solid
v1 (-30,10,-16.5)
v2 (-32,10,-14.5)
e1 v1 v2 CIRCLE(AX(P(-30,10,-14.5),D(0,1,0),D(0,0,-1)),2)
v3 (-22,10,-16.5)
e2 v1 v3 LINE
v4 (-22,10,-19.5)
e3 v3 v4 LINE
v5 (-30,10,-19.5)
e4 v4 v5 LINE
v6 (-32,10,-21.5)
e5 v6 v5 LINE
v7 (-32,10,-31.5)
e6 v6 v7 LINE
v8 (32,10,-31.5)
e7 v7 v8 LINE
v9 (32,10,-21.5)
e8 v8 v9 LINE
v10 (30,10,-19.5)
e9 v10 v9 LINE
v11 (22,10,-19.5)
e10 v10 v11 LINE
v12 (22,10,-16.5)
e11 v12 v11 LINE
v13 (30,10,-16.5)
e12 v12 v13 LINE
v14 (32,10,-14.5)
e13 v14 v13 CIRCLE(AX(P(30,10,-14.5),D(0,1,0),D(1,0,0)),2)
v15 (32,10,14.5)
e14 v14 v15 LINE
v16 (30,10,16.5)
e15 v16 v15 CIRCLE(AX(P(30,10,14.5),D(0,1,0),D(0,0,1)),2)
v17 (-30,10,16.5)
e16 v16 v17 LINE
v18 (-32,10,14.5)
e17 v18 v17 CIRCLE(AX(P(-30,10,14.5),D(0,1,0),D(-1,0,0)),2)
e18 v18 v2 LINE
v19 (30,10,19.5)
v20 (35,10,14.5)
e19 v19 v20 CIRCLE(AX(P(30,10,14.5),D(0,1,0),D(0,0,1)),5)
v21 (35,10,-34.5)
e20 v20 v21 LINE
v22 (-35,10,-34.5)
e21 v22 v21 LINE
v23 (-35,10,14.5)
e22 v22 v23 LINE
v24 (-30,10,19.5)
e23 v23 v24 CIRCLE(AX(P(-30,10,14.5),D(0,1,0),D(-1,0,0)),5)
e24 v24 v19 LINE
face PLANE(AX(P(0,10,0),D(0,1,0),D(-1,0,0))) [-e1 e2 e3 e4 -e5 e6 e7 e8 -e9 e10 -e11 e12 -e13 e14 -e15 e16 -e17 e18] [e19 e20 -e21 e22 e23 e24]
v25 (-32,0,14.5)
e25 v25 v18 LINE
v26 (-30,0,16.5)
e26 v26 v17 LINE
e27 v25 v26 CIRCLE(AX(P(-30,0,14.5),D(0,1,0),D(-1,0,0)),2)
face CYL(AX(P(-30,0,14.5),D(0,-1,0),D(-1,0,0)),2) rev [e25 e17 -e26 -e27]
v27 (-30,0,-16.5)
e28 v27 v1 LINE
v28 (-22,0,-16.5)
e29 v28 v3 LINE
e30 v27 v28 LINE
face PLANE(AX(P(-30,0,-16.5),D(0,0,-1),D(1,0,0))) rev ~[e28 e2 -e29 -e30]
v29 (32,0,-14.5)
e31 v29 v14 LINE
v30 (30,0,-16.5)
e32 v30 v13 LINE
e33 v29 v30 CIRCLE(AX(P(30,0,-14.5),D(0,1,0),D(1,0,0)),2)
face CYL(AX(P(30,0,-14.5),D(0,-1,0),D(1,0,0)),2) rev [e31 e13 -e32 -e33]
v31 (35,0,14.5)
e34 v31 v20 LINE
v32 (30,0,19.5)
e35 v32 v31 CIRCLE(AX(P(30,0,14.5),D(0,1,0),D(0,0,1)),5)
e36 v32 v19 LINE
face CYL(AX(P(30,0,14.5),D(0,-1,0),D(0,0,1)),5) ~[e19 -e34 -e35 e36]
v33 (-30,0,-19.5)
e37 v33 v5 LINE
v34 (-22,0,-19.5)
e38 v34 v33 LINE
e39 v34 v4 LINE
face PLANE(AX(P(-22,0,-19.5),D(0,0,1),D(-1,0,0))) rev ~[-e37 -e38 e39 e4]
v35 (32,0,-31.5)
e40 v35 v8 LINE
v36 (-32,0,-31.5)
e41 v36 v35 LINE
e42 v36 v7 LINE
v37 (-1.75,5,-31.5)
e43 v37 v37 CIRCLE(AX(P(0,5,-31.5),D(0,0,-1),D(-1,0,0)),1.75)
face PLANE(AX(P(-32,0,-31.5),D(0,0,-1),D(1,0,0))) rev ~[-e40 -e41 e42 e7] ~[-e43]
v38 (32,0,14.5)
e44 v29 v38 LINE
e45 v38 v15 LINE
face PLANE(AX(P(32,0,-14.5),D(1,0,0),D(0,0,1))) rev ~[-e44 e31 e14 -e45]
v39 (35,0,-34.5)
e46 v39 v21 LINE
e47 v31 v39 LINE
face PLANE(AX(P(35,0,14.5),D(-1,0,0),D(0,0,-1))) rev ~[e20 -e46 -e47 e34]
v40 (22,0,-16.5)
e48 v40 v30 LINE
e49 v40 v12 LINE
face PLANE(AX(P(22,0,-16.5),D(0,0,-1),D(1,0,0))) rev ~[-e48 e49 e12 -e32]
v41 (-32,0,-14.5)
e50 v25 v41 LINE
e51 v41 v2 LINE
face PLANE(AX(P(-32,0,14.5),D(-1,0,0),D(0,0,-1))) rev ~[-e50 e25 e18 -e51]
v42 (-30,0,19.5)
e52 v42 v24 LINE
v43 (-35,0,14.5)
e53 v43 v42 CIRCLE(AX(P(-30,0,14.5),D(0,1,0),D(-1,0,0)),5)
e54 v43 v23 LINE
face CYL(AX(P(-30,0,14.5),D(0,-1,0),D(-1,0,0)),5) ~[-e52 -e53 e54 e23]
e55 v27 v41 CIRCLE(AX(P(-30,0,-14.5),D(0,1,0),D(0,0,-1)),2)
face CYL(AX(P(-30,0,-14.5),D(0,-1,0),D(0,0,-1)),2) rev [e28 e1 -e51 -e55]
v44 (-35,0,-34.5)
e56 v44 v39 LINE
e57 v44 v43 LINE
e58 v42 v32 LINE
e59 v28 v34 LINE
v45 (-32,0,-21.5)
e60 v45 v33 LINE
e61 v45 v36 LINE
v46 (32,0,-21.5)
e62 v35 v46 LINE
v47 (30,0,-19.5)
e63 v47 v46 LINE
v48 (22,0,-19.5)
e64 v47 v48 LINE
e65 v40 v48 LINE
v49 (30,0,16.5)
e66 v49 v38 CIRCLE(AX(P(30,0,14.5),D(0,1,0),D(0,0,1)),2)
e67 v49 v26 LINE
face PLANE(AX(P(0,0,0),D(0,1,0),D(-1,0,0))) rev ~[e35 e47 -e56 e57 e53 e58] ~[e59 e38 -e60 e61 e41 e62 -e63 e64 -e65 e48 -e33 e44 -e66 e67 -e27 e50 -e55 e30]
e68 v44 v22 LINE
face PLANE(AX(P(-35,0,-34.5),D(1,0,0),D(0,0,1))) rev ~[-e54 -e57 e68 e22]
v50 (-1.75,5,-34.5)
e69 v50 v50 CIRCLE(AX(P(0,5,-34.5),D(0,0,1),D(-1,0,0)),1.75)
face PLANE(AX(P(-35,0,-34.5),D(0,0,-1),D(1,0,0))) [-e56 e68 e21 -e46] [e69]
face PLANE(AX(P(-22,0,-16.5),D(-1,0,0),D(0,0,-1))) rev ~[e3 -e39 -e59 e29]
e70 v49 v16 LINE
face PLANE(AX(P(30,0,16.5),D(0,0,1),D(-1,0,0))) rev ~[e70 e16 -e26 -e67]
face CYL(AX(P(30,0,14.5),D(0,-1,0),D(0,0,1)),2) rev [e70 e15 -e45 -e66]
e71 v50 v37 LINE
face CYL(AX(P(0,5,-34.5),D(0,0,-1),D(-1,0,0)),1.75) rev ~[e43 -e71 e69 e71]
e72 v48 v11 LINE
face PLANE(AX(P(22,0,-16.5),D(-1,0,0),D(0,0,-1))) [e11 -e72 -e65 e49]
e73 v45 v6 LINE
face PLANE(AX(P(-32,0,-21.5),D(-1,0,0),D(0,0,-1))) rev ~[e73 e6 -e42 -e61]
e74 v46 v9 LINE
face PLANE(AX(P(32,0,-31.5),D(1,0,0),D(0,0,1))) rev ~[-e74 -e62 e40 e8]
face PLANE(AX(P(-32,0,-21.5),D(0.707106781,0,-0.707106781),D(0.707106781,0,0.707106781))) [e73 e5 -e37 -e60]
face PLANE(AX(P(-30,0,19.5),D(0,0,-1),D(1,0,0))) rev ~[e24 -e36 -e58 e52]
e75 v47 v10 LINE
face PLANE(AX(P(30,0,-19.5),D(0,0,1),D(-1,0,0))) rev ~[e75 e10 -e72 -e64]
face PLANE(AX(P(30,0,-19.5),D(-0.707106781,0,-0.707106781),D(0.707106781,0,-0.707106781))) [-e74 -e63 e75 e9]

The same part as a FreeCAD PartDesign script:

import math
import FreeCAD as App
import Part
import Sketcher
Q = App.Units.Quantity

doc = App.newDocument("Part")
body = doc.addObject("PartDesign::Body", "Body")

# Sketch on XZ plane
sketch1 = body.newObject("Sketcher::SketchObject", "Sketch")
sketch1.AttachmentSupport = (doc.getObject("XZ_Plane"), [""])
sketch1.MapMode = "FlatFace"
sketch1.addGeometry(Part.ArcOfCircle(Part.Circle(App.Vector(30, 14.5, 0), App.Vector(0, 0, 1), 5), math.radians(0), math.radians(90)), False)
sketch1.addGeometry(Part.LineSegment(App.Vector(35, 14.5, 0), App.Vector(35, -34.5, 0)), False)
sketch1.addGeometry(Part.LineSegment(App.Vector(35, -34.5, 0), App.Vector(-35, -34.5, 0)), False)
sketch1.addGeometry(Part.LineSegment(App.Vector(-35, -34.5, 0), App.Vector(-35, 14.5, 0)), False)
sketch1.addGeometry(Part.ArcOfCircle(Part.Circle(App.Vector(-30, 14.5, 0), App.Vector(0, 0, 1), 5), math.radians(90), math.radians(180)), False)
sketch1.addGeometry(Part.LineSegment(App.Vector(-30, 19.5, 0), App.Vector(30, 19.5, 0)), False)
sketch1.addGeometry(Part.ArcOfCircle(Part.Circle(App.Vector(30, 14.5, 0), App.Vector(0, 0, 1), 2), math.radians(0), math.radians(90)), False)
sketch1.addGeometry(Part.LineSegment(App.Vector(30, 16.5, 0), App.Vector(-30, 16.5, 0)), False)
sketch1.addGeometry(Part.ArcOfCircle(Part.Circle(App.Vector(-30, 14.5, 0), App.Vector(0, 0, 1), 2), math.radians(90), math.radians(180)), False)
sketch1.addGeometry(Part.LineSegment(App.Vector(-32, 14.5, 0), App.Vector(-32, -14.5, 0)), False)
sketch1.addGeometry(Part.ArcOfCircle(Part.Circle(App.Vector(-30, -14.5, 0), App.Vector(0, 0, 1), 2), math.radians(180), math.radians(270)), False)
sketch1.addGeometry(Part.LineSegment(App.Vector(-30, -16.5, 0), App.Vector(-22, -16.5, 0)), False)
sketch1.addGeometry(Part.LineSegment(App.Vector(-22, -16.5, 0), App.Vector(-22, -19.5, 0)), False)
sketch1.addGeometry(Part.LineSegment(App.Vector(-22, -19.5, 0), App.Vector(-30, -19.5, 0)), False)
sketch1.addGeometry(Part.LineSegment(App.Vector(-30, -19.5, 0), App.Vector(-32, -21.5, 0)), False)
sketch1.addGeometry(Part.LineSegment(App.Vector(-32, -21.5, 0), App.Vector(-32, -31.5, 0)), False)
sketch1.addGeometry(Part.LineSegment(App.Vector(-32, -31.5, 0), App.Vector(32, -31.5, 0)), False)
sketch1.addGeometry(Part.LineSegment(App.Vector(32, -31.5, 0), App.Vector(32, -21.5, 0)), False)
sketch1.addGeometry(Part.LineSegment(App.Vector(32, -21.5, 0), App.Vector(30, -19.5, 0)), False)
sketch1.addGeometry(Part.LineSegment(App.Vector(30, -19.5, 0), App.Vector(22, -19.5, 0)), False)
sketch1.addGeometry(Part.LineSegment(App.Vector(22, -19.5, 0), App.Vector(22, -16.5, 0)), False)
sketch1.addGeometry(Part.LineSegment(App.Vector(22, -16.5, 0), App.Vector(30, -16.5, 0)), False)
sketch1.addGeometry(Part.ArcOfCircle(Part.Circle(App.Vector(30, -14.5, 0), App.Vector(0, 0, 1), 2), math.radians(-90), math.radians(0)), False)
sketch1.addGeometry(Part.LineSegment(App.Vector(32, -14.5, 0), App.Vector(32, 14.5, 0)), False)
sketch1.addConstraint(Sketcher.Constraint("Tangent", 0, 1, 1, 1))
sketch1.addConstraint(Sketcher.Constraint("Coincident", 1, 2, 2, 1))
sketch1.addConstraint(Sketcher.Constraint("Coincident", 2, 2, 3, 1))
sketch1.addConstraint(Sketcher.Constraint("Tangent", 3, 2, 4, 2))
sketch1.addConstraint(Sketcher.Constraint("Tangent", 4, 1, 5, 1))
sketch1.addConstraint(Sketcher.Constraint("Tangent", 5, 2, 0, 2))
sketch1.addConstraint(Sketcher.Constraint("Tangent", 6, 2, 7, 1))
sketch1.addConstraint(Sketcher.Constraint("Tangent", 7, 2, 8, 1))
sketch1.addConstraint(Sketcher.Constraint("Tangent", 8, 2, 9, 1))
sketch1.addConstraint(Sketcher.Constraint("Tangent", 9, 2, 10, 1))
sketch1.addConstraint(Sketcher.Constraint("Tangent", 10, 2, 11, 1))
sketch1.addConstraint(Sketcher.Constraint("Coincident", 11, 2, 12, 1))
sketch1.addConstraint(Sketcher.Constraint("Coincident", 12, 2, 13, 1))
sketch1.addConstraint(Sketcher.Constraint("Coincident", 13, 2, 14, 1))
sketch1.addConstraint(Sketcher.Constraint("Coincident", 14, 2, 15, 1))
sketch1.addConstraint(Sketcher.Constraint("Coincident", 15, 2, 16, 1))
sketch1.addConstraint(Sketcher.Constraint("Coincident", 16, 2, 17, 1))
sketch1.addConstraint(Sketcher.Constraint("Coincident", 17, 2, 18, 1))
sketch1.addConstraint(Sketcher.Constraint("Coincident", 18, 2, 19, 1))
sketch1.addConstraint(Sketcher.Constraint("Coincident", 19, 2, 20, 1))
sketch1.addConstraint(Sketcher.Constraint("Coincident", 20, 2, 21, 1))
sketch1.addConstraint(Sketcher.Constraint("Tangent", 21, 2, 22, 1))
sketch1.addConstraint(Sketcher.Constraint("Tangent", 22, 2, 23, 1))
sketch1.addConstraint(Sketcher.Constraint("Tangent", 23, 2, 6, 1))
sketch1.addConstraint(Sketcher.Constraint("Vertical", 1))
sketch1.addConstraint(Sketcher.Constraint("Horizontal", 2))
sketch1.addConstraint(Sketcher.Constraint("Vertical", 3))
sketch1.addConstraint(Sketcher.Constraint("Horizontal", 5))
sketch1.addConstraint(Sketcher.Constraint("Horizontal", 7))
sketch1.addConstraint(Sketcher.Constraint("Vertical", 9))
sketch1.addConstraint(Sketcher.Constraint("Horizontal", 11))
sketch1.addConstraint(Sketcher.Constraint("Vertical", 12))
sketch1.addConstraint(Sketcher.Constraint("Horizontal", 13))
sketch1.addConstraint(Sketcher.Constraint("Vertical", 15))
sketch1.addConstraint(Sketcher.Constraint("Horizontal", 16))
sketch1.addConstraint(Sketcher.Constraint("Vertical", 17))
sketch1.addConstraint(Sketcher.Constraint("Horizontal", 19))
sketch1.addConstraint(Sketcher.Constraint("Vertical", 20))
sketch1.addConstraint(Sketcher.Constraint("Horizontal", 21))
sketch1.addConstraint(Sketcher.Constraint("Vertical", 23))
sketch1.addConstraint(Sketcher.Constraint("Coincident", 6, 3, 0, 3))
sketch1.addConstraint(Sketcher.Constraint("Coincident", 8, 3, 4, 3))
sketch1.addConstraint(Sketcher.Constraint("Equal", 0, 4))
sketch1.addConstraint(Sketcher.Constraint("Equal", 8, 10))
sketch1.addConstraint(Sketcher.Constraint("Equal", 10, 22))
sketch1.addConstraint(Sketcher.Constraint("Symmetric", 0, 3, 10, 3, -1, 1))
sketch1.addConstraint(Sketcher.Constraint("Symmetric", 5, 2, 13, 2, -1, 1))
sketch1.addConstraint(Sketcher.Constraint("Symmetric", 4, 1, 18, 2, -1, 1))
sketch1.addConstraint(Sketcher.Constraint("Symmetric", 14, 2, 17, 2, -2))
sketch1.addConstraint(Sketcher.Constraint("Symmetric", 11, 2, 20, 2, -2))
sketch1.addConstraint(Sketcher.Constraint("Perpendicular", 14, 18))
sketch1.addConstraint(Sketcher.Constraint("Vertical", 9, 2, 14, 2))
sketch1.addConstraint(Sketcher.Constraint("Radius", 0, Q("5 mm")))
sketch1.addConstraint(Sketcher.Constraint("Radius", 6, Q("2 mm")))
sketch1.addConstraint(Sketcher.Constraint("DistanceX", 2, 2, 2, 1, Q("70 mm")))
sketch1.addConstraint(Sketcher.Constraint("DistanceY", 15, 2, 15, 1, Q("10 mm")))
sketch1.addConstraint(Sketcher.Constraint("DistanceY", 1, 2, 22, 3, Q("20 mm")))
sketch1.addConstraint(Sketcher.Constraint("DistanceX", 9, 2, 11, 2, Q("10 mm")))
sketch1.addConstraint(Sketcher.Constraint("DistanceY", -1, 1, 6, 2, Q("16.5 mm")))
pad1 = body.newObject("PartDesign::Pad", "Pad")
pad1.Profile = sketch1
pad1.Length = 10
pad1.Reversed = True

# Sketch on XY plane
sketch2 = body.newObject("Sketcher::SketchObject", "Sketch001")
sketch2.AttachmentSupport = (doc.getObject("XY_Plane"), [""])
sketch2.MapMode = "FlatFace"
sketch2.AttachmentOffset = App.Placement(App.Vector(0, 0, -34.5), App.Rotation())
sketch2.addGeometry(Part.Circle(App.Vector(0, 5, 0), App.Vector(0, 0, 1), 1.8), False)
sketch2.addConstraint(Sketcher.Constraint("PointOnObject", 0, 3, -2))
sketch2.addConstraint(Sketcher.Constraint("Diameter", 0, Q("3.5 mm")))
sketch2.addConstraint(Sketcher.Constraint("DistanceY", -1, 1, 0, 3, Q("5 mm")))
pocket1 = body.newObject("PartDesign::Pocket", "Pocket")
pocket1.Profile = sketch2
pocket1.Length = 10
pocket1.Reversed = True

doc.recompute()
